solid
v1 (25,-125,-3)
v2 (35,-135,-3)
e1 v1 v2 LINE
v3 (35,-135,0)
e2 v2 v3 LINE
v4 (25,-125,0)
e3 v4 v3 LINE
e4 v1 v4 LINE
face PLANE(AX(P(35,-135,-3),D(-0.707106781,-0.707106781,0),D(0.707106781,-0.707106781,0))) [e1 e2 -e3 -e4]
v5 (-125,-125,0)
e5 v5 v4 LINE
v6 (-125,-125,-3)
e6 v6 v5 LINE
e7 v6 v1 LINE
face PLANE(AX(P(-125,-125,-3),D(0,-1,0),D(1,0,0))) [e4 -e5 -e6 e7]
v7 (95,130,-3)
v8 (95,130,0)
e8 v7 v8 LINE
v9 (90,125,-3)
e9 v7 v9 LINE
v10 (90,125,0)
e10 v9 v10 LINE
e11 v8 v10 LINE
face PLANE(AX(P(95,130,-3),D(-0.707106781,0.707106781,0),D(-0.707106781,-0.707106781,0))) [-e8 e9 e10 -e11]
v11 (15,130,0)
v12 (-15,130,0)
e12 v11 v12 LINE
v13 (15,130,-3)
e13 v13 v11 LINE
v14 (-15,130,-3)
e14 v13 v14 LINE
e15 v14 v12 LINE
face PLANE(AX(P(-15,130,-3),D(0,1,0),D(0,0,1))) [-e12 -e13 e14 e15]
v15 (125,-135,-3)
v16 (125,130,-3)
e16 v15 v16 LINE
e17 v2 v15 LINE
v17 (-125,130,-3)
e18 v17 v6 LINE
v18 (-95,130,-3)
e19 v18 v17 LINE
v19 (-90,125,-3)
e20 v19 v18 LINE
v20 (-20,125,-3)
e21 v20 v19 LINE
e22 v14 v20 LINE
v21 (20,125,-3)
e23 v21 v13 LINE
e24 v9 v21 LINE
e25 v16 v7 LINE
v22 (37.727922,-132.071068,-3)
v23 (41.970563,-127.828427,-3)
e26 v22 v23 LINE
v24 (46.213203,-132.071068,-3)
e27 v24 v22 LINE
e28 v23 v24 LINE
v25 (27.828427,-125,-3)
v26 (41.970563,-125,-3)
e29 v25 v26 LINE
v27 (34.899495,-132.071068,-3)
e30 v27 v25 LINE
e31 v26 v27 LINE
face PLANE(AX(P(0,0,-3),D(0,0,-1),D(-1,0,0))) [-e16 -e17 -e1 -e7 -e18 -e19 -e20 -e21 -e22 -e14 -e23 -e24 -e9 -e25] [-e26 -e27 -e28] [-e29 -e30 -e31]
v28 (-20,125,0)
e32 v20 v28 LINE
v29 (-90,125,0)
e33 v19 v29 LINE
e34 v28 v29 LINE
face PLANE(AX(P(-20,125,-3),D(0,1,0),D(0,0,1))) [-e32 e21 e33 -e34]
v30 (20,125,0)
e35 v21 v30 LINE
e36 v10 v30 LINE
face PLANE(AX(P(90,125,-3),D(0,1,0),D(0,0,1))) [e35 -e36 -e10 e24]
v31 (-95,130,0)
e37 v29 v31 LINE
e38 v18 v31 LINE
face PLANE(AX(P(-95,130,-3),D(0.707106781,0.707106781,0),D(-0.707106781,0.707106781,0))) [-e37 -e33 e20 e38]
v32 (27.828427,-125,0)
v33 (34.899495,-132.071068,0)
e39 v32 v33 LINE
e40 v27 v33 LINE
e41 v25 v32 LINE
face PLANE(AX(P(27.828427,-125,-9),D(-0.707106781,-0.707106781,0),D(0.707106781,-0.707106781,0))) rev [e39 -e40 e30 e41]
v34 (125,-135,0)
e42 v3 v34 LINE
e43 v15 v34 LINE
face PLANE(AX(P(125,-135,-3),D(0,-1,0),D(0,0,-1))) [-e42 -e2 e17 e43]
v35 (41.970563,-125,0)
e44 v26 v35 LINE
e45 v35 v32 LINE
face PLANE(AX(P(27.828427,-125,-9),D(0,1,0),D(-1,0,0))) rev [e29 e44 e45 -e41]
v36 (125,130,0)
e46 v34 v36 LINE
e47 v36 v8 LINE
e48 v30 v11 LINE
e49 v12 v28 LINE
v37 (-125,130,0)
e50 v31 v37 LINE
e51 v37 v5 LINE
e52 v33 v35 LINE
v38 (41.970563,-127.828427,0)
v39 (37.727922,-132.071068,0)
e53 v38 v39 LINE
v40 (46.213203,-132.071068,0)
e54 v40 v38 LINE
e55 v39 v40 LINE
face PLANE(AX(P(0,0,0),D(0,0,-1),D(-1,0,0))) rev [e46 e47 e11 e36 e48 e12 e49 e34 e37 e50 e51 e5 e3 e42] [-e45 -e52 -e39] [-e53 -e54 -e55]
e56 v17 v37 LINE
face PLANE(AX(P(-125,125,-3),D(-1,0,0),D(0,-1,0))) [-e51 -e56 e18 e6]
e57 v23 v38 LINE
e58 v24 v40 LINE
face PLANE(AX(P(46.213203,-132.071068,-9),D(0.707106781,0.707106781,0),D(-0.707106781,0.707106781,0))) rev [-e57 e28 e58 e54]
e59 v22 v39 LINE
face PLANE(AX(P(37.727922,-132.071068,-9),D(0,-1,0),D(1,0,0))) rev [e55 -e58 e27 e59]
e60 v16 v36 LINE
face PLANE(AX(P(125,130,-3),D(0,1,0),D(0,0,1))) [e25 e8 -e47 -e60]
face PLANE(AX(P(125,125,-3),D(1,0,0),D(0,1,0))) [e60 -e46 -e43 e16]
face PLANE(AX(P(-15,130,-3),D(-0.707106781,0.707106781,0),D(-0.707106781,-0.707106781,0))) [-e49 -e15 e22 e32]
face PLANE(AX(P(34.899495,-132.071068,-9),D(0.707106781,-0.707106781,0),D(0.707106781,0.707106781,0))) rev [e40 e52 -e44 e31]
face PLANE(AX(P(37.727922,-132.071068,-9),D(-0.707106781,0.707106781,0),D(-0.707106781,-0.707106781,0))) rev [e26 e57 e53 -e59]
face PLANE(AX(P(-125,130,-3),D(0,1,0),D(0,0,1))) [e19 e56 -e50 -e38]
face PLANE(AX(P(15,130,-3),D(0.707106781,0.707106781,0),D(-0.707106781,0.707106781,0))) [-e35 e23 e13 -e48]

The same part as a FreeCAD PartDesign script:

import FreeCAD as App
import Part
import Sketcher
from FreeCAD import Vector
Q = App.Units.Quantity

doc = App.newDocument("Part")
body = doc.addObject("PartDesign::Body", "Body")

# Sketch on XY plane
sketch1 = doc.addObject("Sketcher::SketchObject", "Sketch")
body.addObject(sketch1)
sketch1.AttachmentSupport = (doc.XY_Plane, [""])
sketch1.MapMode = "FlatFace"
sketch1.addGeometry([
    Part.LineSegment(Vector(-125, -125, 0), Vector(25, -125, 0)),  # 0
    Part.LineSegment(Vector(25, -125, 0), Vector(35, -135, 0)),  # 1
    Part.LineSegment(Vector(35, -135, 0), Vector(125, -135, 0)),  # 2
    Part.LineSegment(Vector(125, -135, 0), Vector(125, 130, 0)),  # 3
    Part.LineSegment(Vector(125, 130, 0), Vector(95, 130, 0)),  # 4
    Part.LineSegment(Vector(95, 130, 0), Vector(90, 125, 0)),  # 5
    Part.LineSegment(Vector(90, 125, 0), Vector(20, 125, 0)),  # 6
    Part.LineSegment(Vector(20, 125, 0), Vector(15, 130, 0)),  # 7
    Part.LineSegment(Vector(15, 130, 0), Vector(-15, 130, 0)),  # 8
    Part.LineSegment(Vector(-15, 130, 0), Vector(-20, 125, 0)),  # 9
    Part.LineSegment(Vector(-20, 125, 0), Vector(-90, 125, 0)),  # 10
    Part.LineSegment(Vector(-90, 125, 0), Vector(-95, 130, 0)),  # 11
    Part.LineSegment(Vector(-95, 130, 0), Vector(-125, 130, 0)),  # 12
    Part.LineSegment(Vector(-125, 130, 0), Vector(-125, -125, 0)),  # 13
], False)
sketch1.addConstraint([
    Sketcher.Constraint("Coincident", 0, 2, 1, 1),
    Sketcher.Constraint("Coincident", 1, 2, 2, 1),
    Sketcher.Constraint("Coincident", 2, 2, 3, 1),
    Sketcher.Constraint("Coincident", 3, 2, 4, 1),
    Sketcher.Constraint("Coincident", 4, 2, 5, 1),
    Sketcher.Constraint("Coincident", 5, 2, 6, 1),
    Sketcher.Constraint("Coincident", 6, 2, 7, 1),
    Sketcher.Constraint("Coincident", 7, 2, 8, 1),
    Sketcher.Constraint("Coincident", 8, 2, 9, 1),
    Sketcher.Constraint("Coincident", 9, 2, 10, 1),
    Sketcher.Constraint("Coincident", 10, 2, 11, 1),
    Sketcher.Constraint("Coincident", 11, 2, 12, 1),
    Sketcher.Constraint("Coincident", 12, 2, 13, 1),
    Sketcher.Constraint("Coincident", 13, 2, 0, 1),
    Sketcher.Constraint("Horizontal", 0),
    Sketcher.Constraint("Horizontal", 2),
    Sketcher.Constraint("Vertical", 3),
    Sketcher.Constraint("Horizontal", 4),
    Sketcher.Constraint("Horizontal", 6),
    Sketcher.Constraint("Horizontal", 8),
    Sketcher.Constraint("Horizontal", 10),
    Sketcher.Constraint("Horizontal", 12),
    Sketcher.Constraint("Vertical", 13),
    Sketcher.Constraint("Symmetric", 6, 2, 9, 2, -2),
    Sketcher.Constraint("Symmetric", 4, 2, 11, 2, -2),
    Sketcher.Constraint("Perpendicular", 1, 5),
    Sketcher.Constraint("Perpendicular", 5, 7),
    Sketcher.Constraint("Perpendicular", 7, 9),
    Sketcher.Constraint("Perpendicular", 9, 11),
    Sketcher.Constraint("Horizontal", 4, 2, 7, 2),
    Sketcher.Constraint("Equal", 4, 8),
    Sketcher.Constraint("Equal", 6, 10),
    Sketcher.Constraint("Equal", 8, 12),
    Sketcher.Constraint("DistanceX", 0, 1, 0, 2, Q("150 mm")),
    Sketcher.Constraint("DistanceX", 2, 1, 2, 2, Q("90 mm")),
    Sketcher.Constraint("DistanceX", 4, 2, 4, 1, Q("30 mm")),
    Sketcher.Constraint("DistanceX", 6, 2, 6, 1, Q("70 mm")),
    Sketcher.Constraint("DistanceY", 3, 1, 3, 2, Q("265 mm")),
    Sketcher.Constraint("DistanceY", 13, 2, 13, 1, Q("255 mm")),
    Sketcher.Constraint("DistanceY", 0, 2, -1, 1, Q("125 mm")),
])
pad1 = doc.addObject("PartDesign::Pad", "Pad")
body.addObject(pad1)
pad1.Profile = sketch1
pad1.Length = 3
pad1.Reversed = True

# Sketch on XY plane
sketch2 = doc.addObject("Sketcher::SketchObject", "Sketch001")
body.addObject(sketch2)
sketch2.AttachmentSupport = (doc.XY_Plane, [""])
sketch2.MapMode = "FlatFace"
sketch2.addGeometry([
    Part.LineSegment(Vector(35, -132, 0), Vector(42, -125, 0)),  # 0
    Part.LineSegment(Vector(42, -125, 0), Vector(28, -125, 0)),  # 1
    Part.LineSegment(Vector(28, -125, 0), Vector(35, -132, 0)),  # 2
    Part.LineSegment(Vector(38, -132, 0), Vector(46, -132, 0)),  # 3
    Part.LineSegment(Vector(46, -132, 0), Vector(42, -128, 0)),  # 4
    Part.LineSegment(Vector(42, -128, 0), Vector(38, -132, 0)),  # 5
], False)
sketch2.addConstraint([
    Sketcher.Constraint("Coincident", 0, 2, 1, 1),
    Sketcher.Constraint("Coincident", 1, 2, 2, 1),
    Sketcher.Constraint("Coincident", 2, 2, 0, 1),
    Sketcher.Constraint("Coincident", 3, 2, 4, 1),
    Sketcher.Constraint("Coincident", 4, 2, 5, 1),
    Sketcher.Constraint("Coincident", 5, 2, 3, 1),
    Sketcher.Constraint("Horizontal", 1),
    Sketcher.Constraint("Horizontal", 3),
    Sketcher.Constraint("Perpendicular", 0, 2),
    Sketcher.Constraint("Parallel", 2, 4),
    Sketcher.Constraint("Perpendicular", 4, 5),
    Sketcher.Constraint("Horizontal", 2, 2, 3, 2),
    Sketcher.Constraint("Vertical", 0, 2, 4, 2),
    Sketcher.Constraint("Equal", 0, 2),
    Sketcher.Constraint("Distance", 0, Q("10 mm")),
    Sketcher.Constraint("Distance", 4, Q("6 mm")),
    Sketcher.Constraint("DistanceY", 0, 2, -1, 1, Q("125 mm")),
    Sketcher.Constraint("DistanceX", -1, 1, 0, 2, Q("41.970563 mm")),
])
pocket1 = doc.addObject("PartDesign::Pocket", "Pocket")
body.addObject(pocket1)
pocket1.Profile = sketch2
pocket1.Length = 9

doc.recompute()
